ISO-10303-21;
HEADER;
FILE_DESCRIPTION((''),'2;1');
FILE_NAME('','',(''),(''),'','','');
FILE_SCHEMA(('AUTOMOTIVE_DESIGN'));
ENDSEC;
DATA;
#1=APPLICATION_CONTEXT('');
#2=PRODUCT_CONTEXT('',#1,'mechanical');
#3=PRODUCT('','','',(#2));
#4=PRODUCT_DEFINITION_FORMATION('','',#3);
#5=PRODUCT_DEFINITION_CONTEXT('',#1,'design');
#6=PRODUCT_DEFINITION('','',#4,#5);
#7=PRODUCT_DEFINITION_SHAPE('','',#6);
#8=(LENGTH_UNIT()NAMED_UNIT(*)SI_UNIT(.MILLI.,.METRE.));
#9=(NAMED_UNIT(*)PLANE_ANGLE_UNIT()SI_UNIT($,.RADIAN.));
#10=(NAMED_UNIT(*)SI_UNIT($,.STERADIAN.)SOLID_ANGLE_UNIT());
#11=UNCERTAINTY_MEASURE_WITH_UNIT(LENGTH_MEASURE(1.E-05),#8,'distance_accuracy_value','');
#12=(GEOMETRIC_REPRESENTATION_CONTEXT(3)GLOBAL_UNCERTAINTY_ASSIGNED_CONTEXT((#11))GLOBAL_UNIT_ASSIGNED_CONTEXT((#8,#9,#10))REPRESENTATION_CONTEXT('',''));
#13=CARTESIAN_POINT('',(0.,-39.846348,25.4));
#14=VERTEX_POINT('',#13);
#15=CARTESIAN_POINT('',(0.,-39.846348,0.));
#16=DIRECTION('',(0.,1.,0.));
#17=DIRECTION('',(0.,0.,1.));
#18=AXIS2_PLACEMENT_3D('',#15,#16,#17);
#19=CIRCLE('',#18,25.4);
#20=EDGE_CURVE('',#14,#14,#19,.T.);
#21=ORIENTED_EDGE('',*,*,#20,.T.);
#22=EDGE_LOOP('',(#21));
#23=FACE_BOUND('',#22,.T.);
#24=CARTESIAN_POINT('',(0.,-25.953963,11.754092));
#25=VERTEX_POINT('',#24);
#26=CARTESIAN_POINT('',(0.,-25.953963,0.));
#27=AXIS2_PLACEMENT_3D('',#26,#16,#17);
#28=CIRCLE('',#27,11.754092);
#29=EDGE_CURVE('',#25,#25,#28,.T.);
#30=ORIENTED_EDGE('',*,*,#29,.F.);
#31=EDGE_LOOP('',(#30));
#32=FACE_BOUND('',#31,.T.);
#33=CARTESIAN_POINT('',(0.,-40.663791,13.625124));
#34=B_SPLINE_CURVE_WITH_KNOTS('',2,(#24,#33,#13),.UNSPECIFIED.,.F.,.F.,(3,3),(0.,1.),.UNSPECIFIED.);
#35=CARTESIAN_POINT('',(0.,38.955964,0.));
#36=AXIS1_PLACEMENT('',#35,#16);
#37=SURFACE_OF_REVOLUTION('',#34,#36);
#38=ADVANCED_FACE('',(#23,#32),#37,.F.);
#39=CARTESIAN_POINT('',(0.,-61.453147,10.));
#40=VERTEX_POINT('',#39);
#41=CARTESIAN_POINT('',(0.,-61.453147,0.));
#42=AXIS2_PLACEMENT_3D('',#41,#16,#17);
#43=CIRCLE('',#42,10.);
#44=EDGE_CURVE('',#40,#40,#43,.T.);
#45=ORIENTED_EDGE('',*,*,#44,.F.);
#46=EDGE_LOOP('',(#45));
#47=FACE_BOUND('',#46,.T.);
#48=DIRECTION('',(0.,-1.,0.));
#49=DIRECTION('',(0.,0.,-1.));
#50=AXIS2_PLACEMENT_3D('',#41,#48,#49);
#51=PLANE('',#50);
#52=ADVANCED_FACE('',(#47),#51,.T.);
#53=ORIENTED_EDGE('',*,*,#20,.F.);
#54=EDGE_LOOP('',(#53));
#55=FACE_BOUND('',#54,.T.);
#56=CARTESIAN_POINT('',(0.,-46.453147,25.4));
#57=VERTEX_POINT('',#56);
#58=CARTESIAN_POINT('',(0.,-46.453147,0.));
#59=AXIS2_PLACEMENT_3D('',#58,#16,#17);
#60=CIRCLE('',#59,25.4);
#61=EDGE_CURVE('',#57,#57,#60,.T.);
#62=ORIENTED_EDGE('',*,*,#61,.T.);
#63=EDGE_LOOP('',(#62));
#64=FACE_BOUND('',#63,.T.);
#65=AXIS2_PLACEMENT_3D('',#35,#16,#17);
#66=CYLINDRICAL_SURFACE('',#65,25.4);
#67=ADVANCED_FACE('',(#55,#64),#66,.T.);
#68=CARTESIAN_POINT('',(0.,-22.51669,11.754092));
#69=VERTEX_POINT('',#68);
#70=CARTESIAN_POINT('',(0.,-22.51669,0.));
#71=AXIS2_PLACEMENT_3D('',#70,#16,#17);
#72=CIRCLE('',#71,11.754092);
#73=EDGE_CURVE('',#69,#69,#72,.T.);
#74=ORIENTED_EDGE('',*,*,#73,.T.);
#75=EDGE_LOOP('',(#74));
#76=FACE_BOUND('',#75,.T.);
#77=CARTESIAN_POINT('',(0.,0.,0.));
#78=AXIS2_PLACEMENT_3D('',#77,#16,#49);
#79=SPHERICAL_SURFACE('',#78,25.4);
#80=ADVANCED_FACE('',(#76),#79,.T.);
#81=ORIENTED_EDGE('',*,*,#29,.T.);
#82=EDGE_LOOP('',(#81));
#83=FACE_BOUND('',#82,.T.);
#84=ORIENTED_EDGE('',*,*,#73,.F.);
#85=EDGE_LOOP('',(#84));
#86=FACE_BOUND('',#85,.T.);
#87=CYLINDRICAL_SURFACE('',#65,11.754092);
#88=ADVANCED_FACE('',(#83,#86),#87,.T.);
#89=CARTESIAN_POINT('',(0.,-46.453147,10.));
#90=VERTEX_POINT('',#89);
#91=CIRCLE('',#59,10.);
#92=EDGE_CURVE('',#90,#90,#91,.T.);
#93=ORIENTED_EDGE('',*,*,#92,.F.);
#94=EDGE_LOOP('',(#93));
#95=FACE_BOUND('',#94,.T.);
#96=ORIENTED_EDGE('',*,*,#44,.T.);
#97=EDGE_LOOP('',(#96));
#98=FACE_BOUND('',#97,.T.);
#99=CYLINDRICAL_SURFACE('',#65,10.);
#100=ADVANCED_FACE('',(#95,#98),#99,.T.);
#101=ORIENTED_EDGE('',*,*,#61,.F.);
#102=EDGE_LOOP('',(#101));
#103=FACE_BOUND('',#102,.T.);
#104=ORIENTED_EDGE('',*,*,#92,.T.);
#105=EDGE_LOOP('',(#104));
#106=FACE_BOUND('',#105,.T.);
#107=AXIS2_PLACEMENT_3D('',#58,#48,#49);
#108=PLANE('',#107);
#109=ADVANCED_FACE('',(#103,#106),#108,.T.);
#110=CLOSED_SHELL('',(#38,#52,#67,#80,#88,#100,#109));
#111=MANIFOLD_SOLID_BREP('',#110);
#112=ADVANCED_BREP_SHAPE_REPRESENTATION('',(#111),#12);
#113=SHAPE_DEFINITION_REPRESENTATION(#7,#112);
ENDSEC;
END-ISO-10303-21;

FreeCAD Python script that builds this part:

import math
import FreeCAD as App
import Part
import Sketcher

doc = App.newDocument("Part")
params = doc.addObject("Spreadsheet::Sheet", "Params")
for row, (alias, value) in enumerate([
    ("sketch1_radius", "25.4 mm"),
    ("sketch1_width", "15 mm"),
    ("sketch1_height", "10 mm"),
    ("revolution_angle", "360 deg"),
], start=1):
    params.set(f"A{row}", alias)
    params.set(f"B{row}", "=" + value)
    params.setAlias(f"B{row}", alias)

body = doc.addObject("PartDesign::Body", "Body")

# Sketch on YZ plane
sketch1 = body.newObject("Sketcher::SketchObject", "Sketch")
sketch1.AttachmentSupport = (doc.getObject("YZ_Plane"), [""])
sketch1.MapMode = "FlatFace"
sketch1.addGeometry([
    Part.LineSegment(App.Vector(-61.453147, 0, 0), App.Vector(25.4, 0, 0)),  # 0
    Part.ArcOfCircle(Part.Circle(App.Vector(0, 0, 0), App.Vector(0, 0, 1), 25.4), math.radians(0), math.radians(152.434682)),  # 1
    Part.LineSegment(App.Vector(-22.51669, 11.754092, 0), App.Vector(-25.953963, 11.754092, 0)),  # 2
    Part.BSplineCurve([App.Vector(-25.953963, 11.754092, 0), App.Vector(-40.663791, 13.625124, 0), App.Vector(-39.846348, 25.4, 0)], [3, 3], [0, 1], False, 2, [1, 1, 1], False),  # 3
    Part.LineSegment(App.Vector(-39.846348, 25.4, 0), App.Vector(-46.453147, 25.4, 0)),  # 4
    Part.LineSegment(App.Vector(-46.453147, 25.4, 0), App.Vector(-46.453147, 10, 0)),  # 5
    Part.LineSegment(App.Vector(-46.453147, 10, 0), App.Vector(-61.453147, 10, 0)),  # 6
    Part.LineSegment(App.Vector(-61.453147, 10, 0), App.Vector(-61.453147, 0, 0)),  # 7
], False)
sketch1.addConstraint([
    Sketcher.Constraint("Block", 3),
    Sketcher.Constraint("Coincident", 0, 2, 1, 1),
    Sketcher.Constraint("Coincident", 1, 2, 2, 1),
    Sketcher.Constraint("Coincident", 2, 2, 3, 1),
    Sketcher.Constraint("Coincident", 3, 2, 4, 1),
    Sketcher.Constraint("Coincident", 4, 2, 5, 1),
    Sketcher.Constraint("Coincident", 5, 2, 6, 1),
    Sketcher.Constraint("Coincident", 6, 2, 7, 1),
    Sketcher.Constraint("Coincident", 7, 2, 0, 1),
    Sketcher.Constraint("Horizontal", 0),
    Sketcher.Constraint("Horizontal", 2),
    Sketcher.Constraint("Horizontal", 4),
    Sketcher.Constraint("Vertical", 5),
    Sketcher.Constraint("Horizontal", 6),
    Sketcher.Constraint("Vertical", 7),
    Sketcher.Constraint("Coincident", 1, 3, -1, 1),
    Sketcher.Constraint("PointOnObject", 0, 2, -1),
    Sketcher.Constraint("Radius", 1, 25.4),
    Sketcher.Constraint("DistanceX", 6, 2, 6, 1, 15.0),
    Sketcher.Constraint("DistanceY", 7, 2, 7, 1, 10.0),
    Sketcher.Constraint("DistanceX", 4, 2, 4, 1, 6.606799),
])
sketch1.setExpression("Constraints[17]", "Params.sketch1_radius")
sketch1.setExpression("Constraints[18]", "Params.sketch1_width")
sketch1.setExpression("Constraints[19]", "Params.sketch1_height")
revolution = body.newObject("PartDesign::Revolution", "Revolution")
revolution.Profile = sketch1
revolution.ReferenceAxis = (sketch1, ["H_Axis"])
revolution.setExpression("Angle", "Params.revolution_angle")

doc.recompute()
